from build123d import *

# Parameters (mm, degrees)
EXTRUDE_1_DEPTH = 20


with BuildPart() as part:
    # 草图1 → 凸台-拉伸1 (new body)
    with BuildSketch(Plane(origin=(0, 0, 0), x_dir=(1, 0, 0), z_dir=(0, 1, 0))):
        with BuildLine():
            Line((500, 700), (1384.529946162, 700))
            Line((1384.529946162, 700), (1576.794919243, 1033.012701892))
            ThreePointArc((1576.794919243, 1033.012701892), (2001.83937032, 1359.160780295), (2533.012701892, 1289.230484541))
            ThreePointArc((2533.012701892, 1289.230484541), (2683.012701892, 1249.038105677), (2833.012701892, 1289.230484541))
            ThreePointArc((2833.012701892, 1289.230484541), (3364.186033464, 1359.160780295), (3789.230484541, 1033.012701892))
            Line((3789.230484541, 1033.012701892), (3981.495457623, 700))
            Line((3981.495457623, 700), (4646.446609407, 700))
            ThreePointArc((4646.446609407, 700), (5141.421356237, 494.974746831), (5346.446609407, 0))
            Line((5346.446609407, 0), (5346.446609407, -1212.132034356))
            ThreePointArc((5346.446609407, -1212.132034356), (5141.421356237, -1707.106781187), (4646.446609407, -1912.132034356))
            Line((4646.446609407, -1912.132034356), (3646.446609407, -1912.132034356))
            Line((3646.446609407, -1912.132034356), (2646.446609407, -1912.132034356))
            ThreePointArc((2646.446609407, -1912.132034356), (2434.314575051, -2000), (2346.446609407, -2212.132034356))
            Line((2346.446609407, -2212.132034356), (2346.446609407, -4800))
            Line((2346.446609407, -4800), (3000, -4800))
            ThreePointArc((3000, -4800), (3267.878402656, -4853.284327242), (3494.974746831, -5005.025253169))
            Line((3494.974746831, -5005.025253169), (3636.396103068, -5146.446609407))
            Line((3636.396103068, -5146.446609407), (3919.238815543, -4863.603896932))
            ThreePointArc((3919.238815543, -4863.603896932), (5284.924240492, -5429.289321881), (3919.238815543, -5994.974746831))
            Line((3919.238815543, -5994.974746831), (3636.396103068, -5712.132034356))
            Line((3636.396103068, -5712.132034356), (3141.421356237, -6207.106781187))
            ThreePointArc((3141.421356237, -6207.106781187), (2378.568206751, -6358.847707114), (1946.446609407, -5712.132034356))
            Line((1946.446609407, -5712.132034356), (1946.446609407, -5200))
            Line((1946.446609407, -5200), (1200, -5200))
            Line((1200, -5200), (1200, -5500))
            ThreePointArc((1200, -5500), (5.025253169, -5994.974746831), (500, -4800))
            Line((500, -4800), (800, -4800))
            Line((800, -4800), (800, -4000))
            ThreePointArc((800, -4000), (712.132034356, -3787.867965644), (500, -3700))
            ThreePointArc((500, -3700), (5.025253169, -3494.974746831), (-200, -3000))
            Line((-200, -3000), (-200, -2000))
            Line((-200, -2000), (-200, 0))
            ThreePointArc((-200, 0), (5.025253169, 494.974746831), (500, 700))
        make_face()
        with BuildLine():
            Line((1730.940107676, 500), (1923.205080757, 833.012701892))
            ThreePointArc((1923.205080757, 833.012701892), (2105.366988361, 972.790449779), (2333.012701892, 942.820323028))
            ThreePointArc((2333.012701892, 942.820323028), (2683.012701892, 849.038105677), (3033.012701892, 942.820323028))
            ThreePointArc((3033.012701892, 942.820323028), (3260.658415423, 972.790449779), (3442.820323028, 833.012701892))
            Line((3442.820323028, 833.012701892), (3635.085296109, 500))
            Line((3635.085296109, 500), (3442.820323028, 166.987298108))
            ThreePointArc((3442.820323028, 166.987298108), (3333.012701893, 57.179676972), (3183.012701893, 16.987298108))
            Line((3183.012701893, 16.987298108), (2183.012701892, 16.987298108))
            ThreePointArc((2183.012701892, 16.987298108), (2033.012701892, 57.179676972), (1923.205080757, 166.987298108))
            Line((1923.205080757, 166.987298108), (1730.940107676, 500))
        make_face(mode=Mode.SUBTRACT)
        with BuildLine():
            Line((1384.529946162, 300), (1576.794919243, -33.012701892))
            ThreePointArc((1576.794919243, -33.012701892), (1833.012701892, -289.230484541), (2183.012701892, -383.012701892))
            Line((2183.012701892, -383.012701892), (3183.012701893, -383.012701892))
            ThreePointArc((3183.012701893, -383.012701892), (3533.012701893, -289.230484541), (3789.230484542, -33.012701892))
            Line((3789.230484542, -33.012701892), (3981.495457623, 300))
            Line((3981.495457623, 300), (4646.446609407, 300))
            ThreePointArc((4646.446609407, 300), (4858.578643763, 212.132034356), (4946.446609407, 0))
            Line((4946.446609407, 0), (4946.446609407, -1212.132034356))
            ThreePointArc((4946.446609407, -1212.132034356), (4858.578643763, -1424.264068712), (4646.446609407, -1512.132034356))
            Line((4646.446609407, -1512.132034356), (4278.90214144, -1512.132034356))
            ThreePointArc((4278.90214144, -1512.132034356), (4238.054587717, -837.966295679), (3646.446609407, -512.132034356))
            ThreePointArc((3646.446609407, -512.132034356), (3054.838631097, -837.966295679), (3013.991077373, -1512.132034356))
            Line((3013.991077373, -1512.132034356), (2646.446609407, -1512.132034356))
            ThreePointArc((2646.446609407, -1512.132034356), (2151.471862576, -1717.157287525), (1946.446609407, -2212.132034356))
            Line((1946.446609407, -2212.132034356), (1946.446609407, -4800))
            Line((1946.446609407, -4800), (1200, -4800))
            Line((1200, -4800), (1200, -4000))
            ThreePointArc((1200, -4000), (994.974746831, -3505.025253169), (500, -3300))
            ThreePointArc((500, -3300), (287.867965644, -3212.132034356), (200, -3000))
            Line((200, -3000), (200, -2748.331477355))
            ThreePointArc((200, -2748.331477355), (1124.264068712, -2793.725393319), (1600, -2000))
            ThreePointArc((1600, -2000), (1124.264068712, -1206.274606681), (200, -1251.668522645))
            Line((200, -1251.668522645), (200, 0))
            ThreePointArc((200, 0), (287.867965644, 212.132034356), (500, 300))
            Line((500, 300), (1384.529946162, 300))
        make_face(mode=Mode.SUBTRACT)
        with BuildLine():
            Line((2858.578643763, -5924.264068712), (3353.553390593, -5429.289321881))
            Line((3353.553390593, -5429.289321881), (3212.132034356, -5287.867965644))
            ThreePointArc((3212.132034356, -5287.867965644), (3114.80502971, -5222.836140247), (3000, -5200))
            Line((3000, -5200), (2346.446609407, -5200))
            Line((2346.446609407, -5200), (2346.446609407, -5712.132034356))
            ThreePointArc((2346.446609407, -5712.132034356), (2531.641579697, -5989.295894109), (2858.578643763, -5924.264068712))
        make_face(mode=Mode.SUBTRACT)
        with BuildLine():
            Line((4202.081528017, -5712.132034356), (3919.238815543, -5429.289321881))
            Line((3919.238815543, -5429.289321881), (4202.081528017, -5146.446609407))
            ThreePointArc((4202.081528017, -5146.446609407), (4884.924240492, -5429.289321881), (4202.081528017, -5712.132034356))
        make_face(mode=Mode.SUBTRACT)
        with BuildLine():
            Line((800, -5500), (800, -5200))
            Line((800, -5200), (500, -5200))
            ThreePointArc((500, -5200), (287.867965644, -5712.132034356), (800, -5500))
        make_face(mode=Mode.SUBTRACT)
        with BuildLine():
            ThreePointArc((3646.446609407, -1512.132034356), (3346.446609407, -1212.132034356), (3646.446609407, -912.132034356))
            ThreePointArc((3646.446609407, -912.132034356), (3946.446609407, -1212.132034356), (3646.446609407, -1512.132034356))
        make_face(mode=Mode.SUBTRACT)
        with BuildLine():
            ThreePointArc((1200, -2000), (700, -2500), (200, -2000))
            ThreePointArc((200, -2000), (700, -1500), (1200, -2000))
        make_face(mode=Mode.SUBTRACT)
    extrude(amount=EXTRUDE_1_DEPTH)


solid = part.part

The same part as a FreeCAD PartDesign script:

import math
import FreeCAD as App
import Part
import Sketcher
from FreeCAD import Vector
Q = App.Units.Quantity

doc = App.newDocument("Part")
params = doc.addObject("Spreadsheet::Sheet", "Params")
for row, (alias, value) in enumerate([
    ("sketch1_diameter", "600 mm"),
    ("sketch1_diameter2", "1000 mm"),
    ("sketch1_radius", "700 mm"),
    ("sketch1_radius2", "900 mm"),
    ("sketch1_width", "2000 mm"),
    ("pad1_length", "20 mm"),
], start=1):
    params.set(f"A{row}", alias)
    params.set(f"B{row}", "=" + value)
    params.setAlias(f"B{row}", alias)

body = doc.addObject("PartDesign::Body", "Body")

sketch1 = body.newObject("Sketcher::SketchObject", "Sketch")
sketch1.AttachmentSupport = (doc.getObject("XZ_Plane"), [""])
sketch1.MapMode = "FlatFace"
sketch1.addGeometry([
    Part.LineSegment(Vector(1385, -700, 0), Vector(500, -700, 0)),
    Part.ArcOfCircle(Part.Circle(Vector(500, 0, 0), Vector(0, 0, 1), 700), math.radians(180), math.radians(270)),
    Part.LineSegment(Vector(-200, 0, 0), Vector(-200, 3000, 0)),
    Part.ArcOfCircle(Part.Circle(Vector(500, 3000, 0), Vector(0, 0, 1), 700), math.radians(90), math.radians(180)),
    Part.ArcOfCircle(Part.Circle(Vector(500, 4000, 0), Vector(0, 0, 1), 300), math.radians(-90), math.radians(0)),
    Part.LineSegment(Vector(800, 4000, 0), Vector(800, 4800, 0)),
    Part.LineSegment(Vector(800, 4800, 0), Vector(500, 4800, 0)),
    Part.ArcOfCircle(Part.Circle(Vector(500, 5500, 0), Vector(0, 0, 1), 700), math.radians(0), math.radians(270)),
    Part.LineSegment(Vector(1200, 5500, 0), Vector(1200, 5200, 0)),
    Part.LineSegment(Vector(1200, 5200, 0), Vector(1946, 5200, 0)),
    Part.LineSegment(Vector(1946, 5200, 0), Vector(1946, 5712, 0)),
    Part.ArcOfCircle(Part.Circle(Vector(2646, 5712, 0), Vector(0, 0, 1), 700), math.radians(45), math.radians(180)),
    Part.LineSegment(Vector(3141, 6207, 0), Vector(3636, 5712, 0)),
    Part.LineSegment(Vector(3636, 5712, 0), Vector(3919, 5995, 0)),
    Part.ArcOfCircle(Part.Circle(Vector(4485, 5429, 0), Vector(0, 0, 1), 800), math.radians(-135), math.radians(135)),
    Part.LineSegment(Vector(3919, 4864, 0), Vector(3636, 5146, 0)),
    Part.LineSegment(Vector(3636, 5146, 0), Vector(3495, 5005, 0)),
    Part.ArcOfCircle(Part.Circle(Vector(3000, 5500, 0), Vector(0, 0, 1), 700), math.radians(-90), math.radians(-45)),
    Part.LineSegment(Vector(3000, 4800, 0), Vector(2346, 4800, 0)),
    Part.LineSegment(Vector(2346, 4800, 0), Vector(2346, 2212, 0)),
    Part.ArcOfCircle(Part.Circle(Vector(2646, 2212, 0), Vector(0, 0, 1), 300), math.radians(180), math.radians(270)),
    Part.LineSegment(Vector(2646, 1912, 0), Vector(4646, 1912, 0)),
    Part.ArcOfCircle(Part.Circle(Vector(4646, 1212, 0), Vector(0, 0, 1), 700), math.radians(0), math.radians(90)),
    Part.LineSegment(Vector(5346, 1212, 0), Vector(5346, 0, 0)),
    Part.ArcOfCircle(Part.Circle(Vector(4646, 0, 0), Vector(0, 0, 1), 700), math.radians(-90), math.radians(0)),
    Part.LineSegment(Vector(4646, -700, 0), Vector(3981, -700, 0)),
    Part.LineSegment(Vector(3981, -700, 0), Vector(3789, -1033, 0)),
    Part.ArcOfCircle(Part.Circle(Vector(3183, -683, 0), Vector(0, 0, 1), 700), math.radians(-120), math.radians(-30)),
    Part.ArcOfCircle(Part.Circle(Vector(2683, -1549, 0), Vector(0, 0, 1), 300), math.radians(60), math.radians(120)),
    Part.ArcOfCircle(Part.Circle(Vector(2183, -683, 0), Vector(0, 0, 1), 700), math.radians(-150), math.radians(-60)),
    Part.LineSegment(Vector(1577, -1033, 0), Vector(1385, -700, 0)),
    Part.LineSegment(Vector(4202, 5712, 0), Vector(3919, 5429, 0)),
    Part.LineSegment(Vector(3919, 5429, 0), Vector(4202, 5146, 0)),
    Part.ArcOfCircle(Part.Circle(Vector(4485, 5429, 0), Vector(0, 0, 1), 400), math.radians(-135), math.radians(135)),
    Part.ArcOfCircle(Part.Circle(Vector(2646, 5712, 0), Vector(0, 0, 1), 300), math.radians(45), math.radians(180)),
    Part.LineSegment(Vector(2346, 5712, 0), Vector(2346, 5200, 0)),
    Part.LineSegment(Vector(2346, 5200, 0), Vector(3000, 5200, 0)),
    Part.ArcOfCircle(Part.Circle(Vector(3000, 5500, 0), Vector(0, 0, 1), 300), math.radians(-90), math.radians(-45)),
    Part.LineSegment(Vector(3212, 5288, 0), Vector(3354, 5429, 0)),
    Part.LineSegment(Vector(3354, 5429, 0), Vector(2859, 5924, 0)),
    Part.ArcOfCircle(Part.Circle(Vector(500, 5500, 0), Vector(0, 0, 1), 300), math.radians(0), math.radians(270)),
    Part.LineSegment(Vector(500, 5200, 0), Vector(800, 5200, 0)),
    Part.LineSegment(Vector(800, 5200, 0), Vector(800, 5500, 0)),
    Part.LineSegment(Vector(1385, -300, 0), Vector(1577, 33, 0)),
    Part.ArcOfCircle(Part.Circle(Vector(2183, -317, 0), Vector(0, 0, 1), 700), math.radians(90), math.radians(150)),
    Part.LineSegment(Vector(2183, 383, 0), Vector(3183, 383, 0)),
    Part.ArcOfCircle(Part.Circle(Vector(3183, -317, 0), Vector(0, 0, 1), 700), math.radians(30), math.radians(90)),
    Part.LineSegment(Vector(3789, 33, 0), Vector(3981, -300, 0)),
    Part.LineSegment(Vector(3981, -300, 0), Vector(4646, -300, 0)),
    Part.ArcOfCircle(Part.Circle(Vector(4646, 0, 0), Vector(0, 0, 1), 300), math.radians(-90), math.radians(0)),
    Part.LineSegment(Vector(4946, 0, 0), Vector(4946, 1212, 0)),
    Part.ArcOfCircle(Part.Circle(Vector(4646, 1212, 0), Vector(0, 0, 1), 300), math.radians(0), math.radians(90)),
    Part.LineSegment(Vector(4646, 1512, 0), Vector(4279, 1512, 0)),
    Part.ArcOfCircle(Part.Circle(Vector(3646, 1212, 0), Vector(0, 0, 1), 700), math.radians(155), math.radians(385)),
    Part.LineSegment(Vector(3014, 1512, 0), Vector(2646, 1512, 0)),
    Part.ArcOfCircle(Part.Circle(Vector(2646, 2212, 0), Vector(0, 0, 1), 700), math.radians(180), math.radians(270)),
    Part.LineSegment(Vector(1946, 2212, 0), Vector(1946, 4800, 0)),
    Part.LineSegment(Vector(1946, 4800, 0), Vector(1200, 4800, 0)),
    Part.LineSegment(Vector(1200, 4800, 0), Vector(1200, 4000, 0)),
    Part.ArcOfCircle(Part.Circle(Vector(500, 4000, 0), Vector(0, 0, 1), 700), math.radians(-90), math.radians(0)),
    Part.ArcOfCircle(Part.Circle(Vector(500, 3000, 0), Vector(0, 0, 1), 300), math.radians(90), math.radians(180)),
    Part.LineSegment(Vector(200, 3000, 0), Vector(200, 2748, 0)),
    Part.ArcOfCircle(Part.Circle(Vector(700, 2000, 0), Vector(0, 0, 1), 900), math.radians(0), math.radians(124)),
    Part.ArcOfCircle(Part.Circle(Vector(700, 2000, 0), Vector(0, 0, 1), 900), math.radians(-124), math.radians(0)),
    Part.LineSegment(Vector(200, 1252, 0), Vector(200, 0, 0)),
    Part.ArcOfCircle(Part.Circle(Vector(500, 0, 0), Vector(0, 0, 1), 300), math.radians(180), math.radians(270)),
    Part.LineSegment(Vector(500, -300, 0), Vector(1385, -300, 0)),
    Part.Circle(Vector(3646, 1212, 0), Vector(0, 0, 1), 300),
    Part.LineSegment(Vector(1731, -500, 0), Vector(1923, -833, 0)),
    Part.ArcOfCircle(Part.Circle(Vector(2183, -683, 0), Vector(0, 0, 1), 300), math.radians(-150), math.radians(-60)),
    Part.ArcOfCircle(Part.Circle(Vector(2683, -1549, 0), Vector(0, 0, 1), 700), math.radians(60), math.radians(120)),
    Part.ArcOfCircle(Part.Circle(Vector(3183, -683, 0), Vector(0, 0, 1), 300), math.radians(-120), math.radians(-30)),
    Part.LineSegment(Vector(3443, -833, 0), Vector(3635, -500, 0)),
    Part.LineSegment(Vector(3635, -500, 0), Vector(3443, -167, 0)),
    Part.ArcOfCircle(Part.Circle(Vector(3183, -317, 0), Vector(0, 0, 1), 300), math.radians(30), math.radians(90)),
    Part.LineSegment(Vector(3183, -17, 0), Vector(2183, -17, 0)),
    Part.ArcOfCircle(Part.Circle(Vector(2183, -317, 0), Vector(0, 0, 1), 300), math.radians(90), math.radians(150)),
    Part.LineSegment(Vector(1923, -167, 0), Vector(1731, -500, 0)),
    Part.Circle(Vector(700, 2000, 0), Vector(0, 0, 1), 500),
], False)
sketch1.addConstraint([
    Sketcher.Constraint("Tangent", 0, 2, 1, 2),
    Sketcher.Constraint("Coincident", 1, 1, 2, 1),
    Sketcher.Constraint("Tangent", 2, 2, 3, 2),
    Sketcher.Constraint("Tangent", 3, 1, 4, 1),
    Sketcher.Constraint("Tangent", 4, 2, 5, 1),
    Sketcher.Constraint("Coincident", 5, 2, 6, 1),
    Sketcher.Constraint("Tangent", 6, 2, 7, 2),
    Sketcher.Constraint("Tangent", 7, 1, 8, 1),
    Sketcher.Constraint("Coincident", 8, 2, 9, 1),
    Sketcher.Constraint("Coincident", 9, 2, 10, 1),
    Sketcher.Constraint("Tangent", 10, 2, 11, 2),
    Sketcher.Constraint("Tangent", 11, 1, 12, 1),
    Sketcher.Constraint("Coincident", 12, 2, 13, 1),
    Sketcher.Constraint("Tangent", 13, 2, 14, 2),
    Sketcher.Constraint("Tangent", 14, 1, 15, 1),
    Sketcher.Constraint("Coincident", 15, 2, 16, 1),
    Sketcher.Constraint("Tangent", 16, 2, 17, 2),
    Sketcher.Constraint("Tangent", 17, 1, 18, 1),
    Sketcher.Constraint("Coincident", 18, 2, 19, 1),
    Sketcher.Constraint("Tangent", 19, 2, 20, 1),
    Sketcher.Constraint("Tangent", 20, 2, 21, 1),
    Sketcher.Constraint("Tangent", 21, 2, 22, 2),
    Sketcher.Constraint("Tangent", 22, 1, 23, 1),
    Sketcher.Constraint("Tangent", 23, 2, 24, 2),
    Sketcher.Constraint("Tangent", 24, 1, 25, 1),
    Sketcher.Constraint("Coincident", 25, 2, 26, 1),
    Sketcher.Constraint("Tangent", 26, 2, 27, 2),
    Sketcher.Constraint("Tangent", 27, 1, 28, 1),
    Sketcher.Constraint("Tangent", 28, 2, 29, 2),
    Sketcher.Constraint("Tangent", 29, 1, 30, 1),
    Sketcher.Constraint("Coincident", 30, 2, 0, 1),
    Sketcher.Constraint("Coincident", 31, 2, 32, 1),
    Sketcher.Constraint("Tangent", 32, 2, 33, 1),
    Sketcher.Constraint("Tangent", 33, 2, 31, 1),
    Sketcher.Constraint("Tangent", 34, 2, 35, 1),
    Sketcher.Constraint("Coincident", 35, 2, 36, 1),
    Sketcher.Constraint("Tangent", 36, 2, 37, 1),
    Sketcher.Constraint("Tangent", 37, 2, 38, 1),
    Sketcher.Constraint("Coincident", 38, 2, 39, 1),
    Sketcher.Constraint("Tangent", 39, 2, 34, 1),
    Sketcher.Constraint("Tangent", 40, 2, 41, 1),
    Sketcher.Constraint("Coincident", 41, 2, 42, 1),
    Sketcher.Constraint("Tangent", 42, 2, 40, 1),
    Sketcher.Constraint("Tangent", 43, 2, 44, 2),
    Sketcher.Constraint("Tangent", 44, 1, 45, 1),
    Sketcher.Constraint("Tangent", 45, 2, 46, 2),
    Sketcher.Constraint("Tangent", 46, 1, 47, 1),
    Sketcher.Constraint("Coincident", 47, 2, 48, 1),
    Sketcher.Constraint("Tangent", 48, 2, 49, 1),
    Sketcher.Constraint("Tangent", 49, 2, 50, 1),
    Sketcher.Constraint("Tangent", 50, 2, 51, 1),
    Sketcher.Constraint("Tangent", 51, 2, 52, 1),
    Sketcher.Constraint("Coincident", 52, 2, 53, 2),
    Sketcher.Constraint("Coincident", 53, 1, 54, 1),
    Sketcher.Constraint("Tangent", 54, 2, 55, 2),
    Sketcher.Constraint("Coincident", 55, 1, 56, 1),
    Sketcher.Constraint("Coincident", 56, 2, 57, 1),
    Sketcher.Constraint("Coincident", 57, 2, 58, 1),
    Sketcher.Constraint("Tangent", 58, 2, 59, 2),
    Sketcher.Constraint("Tangent", 59, 1, 60, 1),
    Sketcher.Constraint("Tangent", 60, 2, 61, 1),
    Sketcher.Constraint("Coincident", 61, 2, 62, 2),
    Sketcher.Constraint("Coincident", 62, 1, 63, 2),
    Sketcher.Constraint("Coincident", 63, 1, 64, 1),
    Sketcher.Constraint("Tangent", 64, 2, 65, 1),
    Sketcher.Constraint("Tangent", 65, 2, 66, 1),
    Sketcher.Constraint("Coincident", 66, 2, 43, 1),
    Sketcher.Constraint("Tangent", 68, 2, 69, 1),
    Sketcher.Constraint("Tangent", 69, 2, 70, 2),
    Sketcher.Constraint("Tangent", 70, 1, 71, 1),
    Sketcher.Constraint("Tangent", 71, 2, 72, 1),
    Sketcher.Constraint("Coincident", 72, 2, 73, 1),
    Sketcher.Constraint("Tangent", 73, 2, 74, 1),
    Sketcher.Constraint("Tangent", 74, 2, 75, 1),
    Sketcher.Constraint("Tangent", 75, 2, 76, 1),
    Sketcher.Constraint("Tangent", 76, 2, 77, 1),
    Sketcher.Constraint("Coincident", 77, 2, 68, 1),
    Sketcher.Constraint("Horizontal", 0),
    Sketcher.Constraint("Vertical", 2),
    Sketcher.Constraint("Vertical", 5),
    Sketcher.Constraint("Horizontal", 6),
    Sketcher.Constraint("Vertical", 8),
    Sketcher.Constraint("Horizontal", 9),
    Sketcher.Constraint("Vertical", 10),
    Sketcher.Constraint("Horizontal", 18),
    Sketcher.Constraint("Vertical", 19),
    Sketcher.Constraint("Horizontal", 21),
    Sketcher.Constraint("Vertical", 23),
    Sketcher.Constraint("Horizontal", 25),
    Sketcher.Constraint("Vertical", 35),
    Sketcher.Constraint("Horizontal", 36),
    Sketcher.Constraint("Horizontal", 41),
    Sketcher.Constraint("Vertical", 42),
    Sketcher.Constraint("Horizontal", 45),
    Sketcher.Constraint("Horizontal", 48),
    Sketcher.Constraint("Vertical", 50),
    Sketcher.Constraint("Horizontal", 52),
    Sketcher.Constraint("Horizontal", 54),
    Sketcher.Constraint("Vertical", 56),
    Sketcher.Constraint("Horizontal", 57),
    Sketcher.Constraint("Vertical", 58),
    Sketcher.Constraint("Vertical", 61),
    Sketcher.Constraint("Vertical", 64),
    Sketcher.Constraint("Horizontal", 66),
    Sketcher.Constraint("Horizontal", 75),
    Sketcher.Constraint("Coincident", 33, 3, 14, 3),
    Sketcher.Constraint("Coincident", 34, 3, 11, 3),
    Sketcher.Constraint("Coincident", 37, 3, 17, 3),
    Sketcher.Constraint("Coincident", 40, 3, 7, 3),
    Sketcher.Constraint("Coincident", 49, 3, 24, 3),
    Sketcher.Constraint("Coincident", 51, 3, 22, 3),
    Sketcher.Constraint("Coincident", 55, 3, 20, 3),
    Sketcher.Constraint("Coincident", 59, 3, 4, 3),
    Sketcher.Constraint("Coincident", 60, 3, 3, 3),
    Sketcher.Constraint("Coincident", 63, 3, 62, 3),
    Sketcher.Constraint("Coincident", 65, 3, 1, 3),
    Sketcher.Constraint("Coincident", 67, 3, 53, 3),
    Sketcher.Constraint("Coincident", 69, 3, 29, 3),
    Sketcher.Constraint("Coincident", 70, 3, 28, 3),
    Sketcher.Constraint("Coincident", 71, 3, 27, 3),
    Sketcher.Constraint("Coincident", 74, 3, 46, 3),
    Sketcher.Constraint("Coincident", 76, 3, 44, 3),
    Sketcher.Constraint("Coincident", 78, 3, 62, 3),
    Sketcher.Constraint("Equal", 1, 3),
    Sketcher.Constraint("Equal", 3, 7),
    Sketcher.Constraint("Equal", 7, 11),
    Sketcher.Constraint("Equal", 11, 17),
    Sketcher.Constraint("Equal", 4, 20),
    Sketcher.Constraint("Equal", 17, 22),
    Sketcher.Constraint("Equal", 22, 24),
    Sketcher.Constraint("Equal", 24, 27),
    Sketcher.Constraint("Equal", 20, 28),
    Sketcher.Constraint("Equal", 27, 29),
    Sketcher.Constraint("Equal", 28, 34),
    Sketcher.Constraint("Equal", 34, 37),
    Sketcher.Constraint("Equal", 37, 40),
    Sketcher.Constraint("Equal", 29, 44),
    Sketcher.Constraint("Equal", 44, 46),
    Sketcher.Constraint("Equal", 40, 49),
    Sketcher.Constraint("Equal", 46, 53),
    Sketcher.Constraint("Equal", 53, 55),
    Sketcher.Constraint("Equal", 55, 59),
    Sketcher.Constraint("Equal", 60, 65),
    Sketcher.Constraint("Equal", 65, 67),
    Sketcher.Constraint("Equal", 67, 69),
    Sketcher.Constraint("Equal", 71, 74),
    Sketcher.Constraint("PointOnObject", 1, 3, -1),
    Sketcher.Constraint("PointOnObject", 24, 3, -1),
    Sketcher.Constraint("Perpendicular", 12, 13),
    Sketcher.Constraint("Perpendicular", 13, 15),
    Sketcher.Constraint("Perpendicular", 15, 16),
    Sketcher.Constraint("Parallel", 16, 31),
    Sketcher.Constraint("Perpendicular", 31, 32),
    Sketcher.Constraint("Perpendicular", 32, 38),
    Sketcher.Constraint("Perpendicular", 38, 39),
    Sketcher.Constraint("Parallel", 26, 43),
    Sketcher.Constraint("Parallel", 30, 47),
    Sketcher.Constraint("Parallel", 47, 68),
    Sketcher.Constraint("Parallel", 43, 72),
    Sketcher.Constraint("Parallel", 68, 73),
    Sketcher.Constraint("Parallel", 72, 77),
    Sketcher.Constraint("Horizontal", 7, 3, 17, 3),
    Sketcher.Constraint("Horizontal", 27, 3, 29, 3),
    Sketcher.Constraint("Horizontal", 51, 3, 53, 3),
    Sketcher.Constraint("Horizontal", 10, 2, 12, 2),
    Sketcher.Constraint("Horizontal", 33, 3, 31, 2),
    Sketcher.Constraint("Horizontal", 15, 2, 32, 2),
    Sketcher.Constraint("Horizontal", 9, 2, 35, 2),
    Sketcher.Constraint("Horizontal", 31, 2, 38, 2),
    Sketcher.Constraint("Horizontal", 18, 2, 56, 2),
    Sketcher.Constraint("Horizontal", 78, 3, 62, 1),
    Sketcher.Constraint("Horizontal", 72, 2, 77, 2),
    Sketcher.Constraint("Vertical", 3, 3, 4, 3),
    Sketcher.Constraint("Vertical", 4, 3, 7, 3),
    Sketcher.Constraint("Vertical", 11, 3, 20, 3),
    Sketcher.Constraint("Vertical", 29, 3, 44, 3),
    Sketcher.Constraint("Vertical", 27, 3, 46, 3),
    Sketcher.Constraint("Vertical", 25, 2, 47, 2),
    Sketcher.Constraint("Equal", 52, 54),
    Sketcher.Constraint("Equal", 19, 56),
    Sketcher.Constraint("Equal", 15, 31),
    Sketcher.Constraint("Equal", 16, 38),
    Sketcher.Constraint("Equal", 47, 68),
    Sketcher.Constraint("Diameter", 67, Q("600 mm")),
    Sketcher.Constraint("Diameter", 78, Q("1000 mm")),
    Sketcher.Constraint("Radius", 1, Q("700 mm")),
    Sketcher.Constraint("Radius", 62, Q("900 mm")),
    Sketcher.Constraint("DistanceX", 21, 1, 21, 2, Q("2000 mm")),
    Sketcher.Constraint("DistanceX", 45, 1, 45, 2, Q("1000 mm")),
    Sketcher.Constraint("DistanceY", 2, 1, 2, 2, Q("3000 mm")),
    Sketcher.Constraint("DistanceY", 5, 1, 5, 2, Q("800 mm")),
    Sketcher.Constraint("Distance", 16, Q("200 mm")),
    Sketcher.Constraint("DistanceX", -1, 1, 1, 3, Q("500 mm")),
    Sketcher.Constraint("DistanceY", -1, 1, 3, 3, Q("3000 mm")),
    Sketcher.Constraint("DistanceX", -1, 1, 17, 3, Q("3000 mm")),
    Sketcher.Constraint("DistanceX", -1, 1, 62, 3, Q("700 mm")),
    Sketcher.Constraint("DistanceY", -1, 1, 62, 3, Q("2000 mm")),
    Sketcher.Constraint("DistanceX", 25, 2, 25, 1, Q("664.951152 mm")),
    Sketcher.Constraint("DistanceX", -1, 1, 27, 3, Q("3183.012702 mm")),
    Sketcher.Constraint("DistanceY", 19, 2, 19, 1, Q("2587.867966 mm")),
])
sketch1.setExpression("Constraints[183]", "Params.sketch1_diameter")
sketch1.setExpression("Constraints[184]", "Params.sketch1_diameter2")
sketch1.setExpression("Constraints[185]", "Params.sketch1_radius")
sketch1.setExpression("Constraints[186]", "Params.sketch1_radius2")
sketch1.setExpression("Constraints[187]", "Params.sketch1_width")
pad1 = body.newObject("PartDesign::Pad", "Pad")
pad1.Profile = sketch1
pad1.setExpression("Length", "Params.pad1_length")
pad1.Reversed = True

doc.recompute()
